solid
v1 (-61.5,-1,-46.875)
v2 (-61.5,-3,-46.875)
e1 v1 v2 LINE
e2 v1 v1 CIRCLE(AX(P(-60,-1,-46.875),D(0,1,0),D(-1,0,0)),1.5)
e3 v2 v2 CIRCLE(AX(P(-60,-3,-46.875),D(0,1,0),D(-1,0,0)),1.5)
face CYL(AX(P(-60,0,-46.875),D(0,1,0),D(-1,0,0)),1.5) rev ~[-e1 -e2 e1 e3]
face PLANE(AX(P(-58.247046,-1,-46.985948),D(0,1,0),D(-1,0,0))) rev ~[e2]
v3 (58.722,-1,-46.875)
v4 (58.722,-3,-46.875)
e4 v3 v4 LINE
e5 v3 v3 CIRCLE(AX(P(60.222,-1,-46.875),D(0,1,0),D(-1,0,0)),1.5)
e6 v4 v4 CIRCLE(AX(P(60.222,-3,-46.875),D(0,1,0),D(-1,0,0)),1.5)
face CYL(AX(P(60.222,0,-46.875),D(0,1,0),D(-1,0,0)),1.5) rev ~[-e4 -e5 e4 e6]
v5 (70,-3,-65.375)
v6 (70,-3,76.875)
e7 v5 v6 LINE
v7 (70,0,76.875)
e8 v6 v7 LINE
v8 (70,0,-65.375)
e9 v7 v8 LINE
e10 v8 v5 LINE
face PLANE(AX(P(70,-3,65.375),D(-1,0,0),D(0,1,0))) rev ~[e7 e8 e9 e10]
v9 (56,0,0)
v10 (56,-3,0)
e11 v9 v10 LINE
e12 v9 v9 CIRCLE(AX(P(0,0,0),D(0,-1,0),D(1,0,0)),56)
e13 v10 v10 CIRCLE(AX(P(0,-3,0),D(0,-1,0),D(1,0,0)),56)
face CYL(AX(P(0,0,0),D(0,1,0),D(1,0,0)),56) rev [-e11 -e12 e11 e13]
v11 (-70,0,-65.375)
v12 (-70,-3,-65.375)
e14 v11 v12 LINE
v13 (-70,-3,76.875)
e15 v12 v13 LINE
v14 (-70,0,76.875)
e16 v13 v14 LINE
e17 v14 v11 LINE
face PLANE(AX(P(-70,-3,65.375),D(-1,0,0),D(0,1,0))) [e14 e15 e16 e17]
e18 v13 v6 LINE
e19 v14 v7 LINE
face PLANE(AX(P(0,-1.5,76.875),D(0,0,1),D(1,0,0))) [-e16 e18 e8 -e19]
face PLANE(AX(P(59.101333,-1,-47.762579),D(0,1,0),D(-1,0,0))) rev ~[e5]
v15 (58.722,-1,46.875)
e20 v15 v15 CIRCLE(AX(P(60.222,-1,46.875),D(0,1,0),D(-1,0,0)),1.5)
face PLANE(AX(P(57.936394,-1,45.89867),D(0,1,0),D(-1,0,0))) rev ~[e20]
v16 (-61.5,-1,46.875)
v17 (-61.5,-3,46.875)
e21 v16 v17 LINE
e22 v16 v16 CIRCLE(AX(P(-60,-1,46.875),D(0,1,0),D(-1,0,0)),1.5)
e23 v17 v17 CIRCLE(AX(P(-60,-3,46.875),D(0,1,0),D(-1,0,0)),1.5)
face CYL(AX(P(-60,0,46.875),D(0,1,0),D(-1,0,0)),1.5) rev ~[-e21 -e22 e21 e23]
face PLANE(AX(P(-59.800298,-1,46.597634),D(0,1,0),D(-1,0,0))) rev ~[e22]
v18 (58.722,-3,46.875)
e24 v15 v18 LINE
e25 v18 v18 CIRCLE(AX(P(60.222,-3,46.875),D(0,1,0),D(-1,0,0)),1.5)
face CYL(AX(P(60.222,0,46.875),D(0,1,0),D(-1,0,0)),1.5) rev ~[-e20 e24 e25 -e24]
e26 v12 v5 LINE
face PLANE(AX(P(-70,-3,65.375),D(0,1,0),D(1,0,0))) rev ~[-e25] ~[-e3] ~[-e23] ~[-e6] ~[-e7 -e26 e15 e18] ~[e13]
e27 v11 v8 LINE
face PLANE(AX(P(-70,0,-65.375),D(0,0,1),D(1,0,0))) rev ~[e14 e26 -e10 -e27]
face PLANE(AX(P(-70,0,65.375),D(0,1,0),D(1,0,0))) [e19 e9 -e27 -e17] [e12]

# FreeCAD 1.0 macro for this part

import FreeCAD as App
import Part
import Sketcher

V = App.Vector


def add_polygon(sketch, points):
    """Adds a closed chain of lines whose ends are joined by coincident constraints."""
    first, n = sketch.GeometryCount, len(points)
    for a, b in zip(points, points[1:] + points[:1]):
        sketch.addGeometry(Part.LineSegment(App.Vector(*a, 0), App.Vector(*b, 0)), False)
    for i in range(n):
        sketch.addConstraint(Sketcher.Constraint("Coincident", first + i, 2, first + (i + 1) % n, 1))

doc = App.newDocument("Part")
params = doc.addObject("Spreadsheet::Sheet", "Params")
for row, (alias, value) in enumerate([
    ("sketch1_diameter", "112 mm"),
    ("sketch1_width", "140 mm"),
    ("sketch1_height", "130.75 mm"),
    ("pad1_length", "3 mm"),
    ("sketch2_diameter", "3 mm"),
    ("pocket1_length", "30 mm"),
    ("pad2_length", "1 mm"),
    ("sketch4_width", "140 mm"),
    ("sketch4_height", "3 mm"),
    ("pad3_length", "11.5 mm"),
], start=1):
    params.set(f"A{row}", alias)
    params.set(f"B{row}", "=" + value)
    params.setAlias(f"B{row}", alias)

body = doc.addObject("PartDesign::Body", "Body")

# Sketch on XZ plane
sketch1 = doc.addObject("Sketcher::SketchObject", "Sketch")
body.addObject(sketch1)
sketch1.AttachmentSupport = (doc.XZ_Plane, [""])
sketch1.MapMode = "FlatFace"
add_polygon(sketch1, [(-70, 65.375), (-70, -65.375), (70, -65.375), (70, 65.375)])  # lines 0-3
sketch1.addGeometry(Part.Circle(V(0, 0, 0), V(0, 0, 1), 56), False)  # 4
sketch1.addConstraint([
    Sketcher.Constraint("Vertical", 0),
    Sketcher.Constraint("Horizontal", 1),
    Sketcher.Constraint("Vertical", 2),
    Sketcher.Constraint("Horizontal", 3),
    Sketcher.Constraint("Coincident", 4, 3, -1, 1),
    Sketcher.Constraint("Symmetric", 0, 2, 2, 2, -1, 1),
    Sketcher.Constraint("Diameter", 4, 112.0),
    Sketcher.Constraint("DistanceX", 1, 1, 1, 2, 140.0),
    Sketcher.Constraint("DistanceY", 0, 2, 0, 1, 130.75),
])
sketch1.setExpression("Constraints[10]", "Params.sketch1_diameter")
sketch1.setExpression("Constraints[11]", "Params.sketch1_width")
sketch1.setExpression("Constraints[12]", "Params.sketch1_height")
pad1 = doc.addObject("PartDesign::Pad", "Pad")
body.addObject(pad1)
pad1.Profile = sketch1
pad1.setExpression("Length", "Params.pad1_length")

# Sketch on XZ plane
sketch2 = doc.addObject("Sketcher::SketchObject", "Sketch001")
body.addObject(sketch2)
sketch2.AttachmentSupport = (doc.XZ_Plane, [""])
sketch2.MapMode = "FlatFace"
sketch2.addGeometry([
    Part.Circle(V(60.222, 46.875, 0), V(0, 0, 1), 1.5),
    Part.Circle(V(-60, 46.875, 0), V(0, 0, 1), 1.5),
    Part.Circle(V(-60, -46.875, 0), V(0, 0, 1), 1.5),
    Part.Circle(V(60.222, -46.875, 0), V(0, 0, 1), 1.5),
], False)
sketch2.addConstraint([
    Sketcher.Constraint("Equal", 0, 1),
    Sketcher.Constraint("Equal", 1, 2),
    Sketcher.Constraint("Equal", 2, 3),
    Sketcher.Constraint("Symmetric", 1, 3, 2, 3, -1),
    Sketcher.Constraint("Symmetric", 0, 3, 3, 3, -1),
    Sketcher.Constraint("Horizontal", 0, 3, 1, 3),
    Sketcher.Constraint("Diameter", 0, 3.0),
    Sketcher.Constraint("DistanceX", 1, 3, -1, 1, 60.0),
    Sketcher.Constraint("DistanceY", 2, 3, 1, 3, 93.75),
    Sketcher.Constraint("DistanceX", -1, 1, 0, 3, 60.222),
])
sketch2.setExpression("Constraints[6]", "Params.sketch2_diameter")
pocket1 = doc.addObject("PartDesign::Pocket", "Pocket")
body.addObject(pocket1)
pocket1.Profile = sketch2
pocket1.setExpression("Length", "Params.pocket1_length")
pocket1.Reversed = True

# Sketch on XZ plane
sketch3 = doc.addObject("Sketcher::SketchObject", "Sketch002")
body.addObject(sketch3)
sketch3.AttachmentSupport = (doc.XZ_Plane, [""])
sketch3.MapMode = "FlatFace"
add_polygon(sketch3, [(65.702669, 52.189349), (65.702669, 39.60799), (50.170119, 39.60799), (50.170119, 52.189349)])  # lines 0-3
add_polygon(sketch3, [(65.081365, -44.733733), (65.081365, -50.791424), (53.121302, -50.791424), (53.121302, -44.733733)])  # lines 4-7
add_polygon(sketch3, [(-52.655327, -40.850591), (-52.655327, -53.121305), (-63.838765, -53.121305), (-63.838765, -40.850591)])  # lines 8-11
add_polygon(sketch3, [(-54.829884, 51.102072), (-54.829884, 42.093196), (-64.770713, 42.093196), (-64.770713, 51.102072)])  # lines 12-15
sketch3.addConstraint([
    Sketcher.Constraint("Vertical", 0),
    Sketcher.Constraint("Horizontal", 1),
    Sketcher.Constraint("Vertical", 2),
    Sketcher.Constraint("Horizontal", 3),
    Sketcher.Constraint("Vertical", 4),
    Sketcher.Constraint("Horizontal", 5),
    Sketcher.Constraint("Vertical", 6),
    Sketcher.Constraint("Horizontal", 7),
    Sketcher.Constraint("Vertical", 8),
    Sketcher.Constraint("Horizontal", 9),
    Sketcher.Constraint("Vertical", 10),
    Sketcher.Constraint("Horizontal", 11),
    Sketcher.Constraint("Vertical", 12),
    Sketcher.Constraint("Horizontal", 13),
    Sketcher.Constraint("Vertical", 14),
    Sketcher.Constraint("Horizontal", 15),
    Sketcher.Constraint("DistanceX", 1, 2, 1, 1, 15.532549),
    Sketcher.Constraint("DistanceX", 13, 2, 13, 1, 9.940829),
    Sketcher.Constraint("DistanceY", 0, 2, 0, 1, 12.581359),
    Sketcher.Constraint("DistanceY", 4, 2, 4, 1, 6.057691),
    Sketcher.Constraint("DistanceX", -1, 1, 5, 2, 53.121302),
    Sketcher.Constraint("DistanceY", 8, 2, 12, 2, 95.214501),
    Sketcher.Constraint("DistanceX", 5, 2, 5, 1, 11.960063),
    Sketcher.Constraint("DistanceX", 9, 2, 9, 1, 11.183437),
    Sketcher.Constraint("DistanceY", 8, 2, 8, 1, 12.270715),
    Sketcher.Constraint("DistanceY", 12, 2, 12, 1, 9.008877),
    Sketcher.Constraint("DistanceX", -1, 1, 0, 2, 65.702669),
    Sketcher.Constraint("DistanceY", -1, 1, 0, 2, 39.60799),
    Sketcher.Constraint("DistanceY", 10, 2, -1, 1, 40.850591),
    Sketcher.Constraint("DistanceX", 8, 2, 5, 2, 105.776629),
    Sketcher.Constraint("DistanceY", 8, 2, 5, 2, 2.329881),
    Sketcher.Constraint("DistanceX", 10, 2, 12, 2, 9.008881),
])
pad2 = doc.addObject("PartDesign::Pad", "Pad001")
body.addObject(pad2)
pad2.Profile = sketch3
pad2.setExpression("Length", "Params.pad2_length")

# Sketch on XY plane
sketch4 = doc.addObject("Sketcher::SketchObject", "Sketch003")
body.addObject(sketch4)
sketch4.AttachmentSupport = (doc.XY_Plane, [""])
sketch4.MapMode = "FlatFace"
sketch4.AttachmentOffset = App.Placement(V(0, 0, 65.375), App.Rotation())
add_polygon(sketch4, [(-70, 0), (-70, -3), (70, -3), (70, 0)])  # lines 0-3
sketch4.addConstraint([
    Sketcher.Constraint("Vertical", 0),
    Sketcher.Constraint("Horizontal", 1),
    Sketcher.Constraint("Vertical", 2),
    Sketcher.Constraint("Horizontal", 3),
    Sketcher.Constraint("Symmetric", 2, 2, 3, 2, -1, 1),
    Sketcher.Constraint("DistanceX", 1, 1, 1, 2, 140.0),
    Sketcher.Constraint("DistanceY", 0, 2, 0, 1, 3.0),
])
sketch4.setExpression("Constraints[9]", "Params.sketch4_width")
sketch4.setExpression("Constraints[10]", "Params.sketch4_height")
pad3 = doc.addObject("PartDesign::Pad", "Pad002")
body.addObject(pad3)
pad3.Profile = sketch4
pad3.setExpression("Length", "Params.pad3_length")

doc.recompute()
